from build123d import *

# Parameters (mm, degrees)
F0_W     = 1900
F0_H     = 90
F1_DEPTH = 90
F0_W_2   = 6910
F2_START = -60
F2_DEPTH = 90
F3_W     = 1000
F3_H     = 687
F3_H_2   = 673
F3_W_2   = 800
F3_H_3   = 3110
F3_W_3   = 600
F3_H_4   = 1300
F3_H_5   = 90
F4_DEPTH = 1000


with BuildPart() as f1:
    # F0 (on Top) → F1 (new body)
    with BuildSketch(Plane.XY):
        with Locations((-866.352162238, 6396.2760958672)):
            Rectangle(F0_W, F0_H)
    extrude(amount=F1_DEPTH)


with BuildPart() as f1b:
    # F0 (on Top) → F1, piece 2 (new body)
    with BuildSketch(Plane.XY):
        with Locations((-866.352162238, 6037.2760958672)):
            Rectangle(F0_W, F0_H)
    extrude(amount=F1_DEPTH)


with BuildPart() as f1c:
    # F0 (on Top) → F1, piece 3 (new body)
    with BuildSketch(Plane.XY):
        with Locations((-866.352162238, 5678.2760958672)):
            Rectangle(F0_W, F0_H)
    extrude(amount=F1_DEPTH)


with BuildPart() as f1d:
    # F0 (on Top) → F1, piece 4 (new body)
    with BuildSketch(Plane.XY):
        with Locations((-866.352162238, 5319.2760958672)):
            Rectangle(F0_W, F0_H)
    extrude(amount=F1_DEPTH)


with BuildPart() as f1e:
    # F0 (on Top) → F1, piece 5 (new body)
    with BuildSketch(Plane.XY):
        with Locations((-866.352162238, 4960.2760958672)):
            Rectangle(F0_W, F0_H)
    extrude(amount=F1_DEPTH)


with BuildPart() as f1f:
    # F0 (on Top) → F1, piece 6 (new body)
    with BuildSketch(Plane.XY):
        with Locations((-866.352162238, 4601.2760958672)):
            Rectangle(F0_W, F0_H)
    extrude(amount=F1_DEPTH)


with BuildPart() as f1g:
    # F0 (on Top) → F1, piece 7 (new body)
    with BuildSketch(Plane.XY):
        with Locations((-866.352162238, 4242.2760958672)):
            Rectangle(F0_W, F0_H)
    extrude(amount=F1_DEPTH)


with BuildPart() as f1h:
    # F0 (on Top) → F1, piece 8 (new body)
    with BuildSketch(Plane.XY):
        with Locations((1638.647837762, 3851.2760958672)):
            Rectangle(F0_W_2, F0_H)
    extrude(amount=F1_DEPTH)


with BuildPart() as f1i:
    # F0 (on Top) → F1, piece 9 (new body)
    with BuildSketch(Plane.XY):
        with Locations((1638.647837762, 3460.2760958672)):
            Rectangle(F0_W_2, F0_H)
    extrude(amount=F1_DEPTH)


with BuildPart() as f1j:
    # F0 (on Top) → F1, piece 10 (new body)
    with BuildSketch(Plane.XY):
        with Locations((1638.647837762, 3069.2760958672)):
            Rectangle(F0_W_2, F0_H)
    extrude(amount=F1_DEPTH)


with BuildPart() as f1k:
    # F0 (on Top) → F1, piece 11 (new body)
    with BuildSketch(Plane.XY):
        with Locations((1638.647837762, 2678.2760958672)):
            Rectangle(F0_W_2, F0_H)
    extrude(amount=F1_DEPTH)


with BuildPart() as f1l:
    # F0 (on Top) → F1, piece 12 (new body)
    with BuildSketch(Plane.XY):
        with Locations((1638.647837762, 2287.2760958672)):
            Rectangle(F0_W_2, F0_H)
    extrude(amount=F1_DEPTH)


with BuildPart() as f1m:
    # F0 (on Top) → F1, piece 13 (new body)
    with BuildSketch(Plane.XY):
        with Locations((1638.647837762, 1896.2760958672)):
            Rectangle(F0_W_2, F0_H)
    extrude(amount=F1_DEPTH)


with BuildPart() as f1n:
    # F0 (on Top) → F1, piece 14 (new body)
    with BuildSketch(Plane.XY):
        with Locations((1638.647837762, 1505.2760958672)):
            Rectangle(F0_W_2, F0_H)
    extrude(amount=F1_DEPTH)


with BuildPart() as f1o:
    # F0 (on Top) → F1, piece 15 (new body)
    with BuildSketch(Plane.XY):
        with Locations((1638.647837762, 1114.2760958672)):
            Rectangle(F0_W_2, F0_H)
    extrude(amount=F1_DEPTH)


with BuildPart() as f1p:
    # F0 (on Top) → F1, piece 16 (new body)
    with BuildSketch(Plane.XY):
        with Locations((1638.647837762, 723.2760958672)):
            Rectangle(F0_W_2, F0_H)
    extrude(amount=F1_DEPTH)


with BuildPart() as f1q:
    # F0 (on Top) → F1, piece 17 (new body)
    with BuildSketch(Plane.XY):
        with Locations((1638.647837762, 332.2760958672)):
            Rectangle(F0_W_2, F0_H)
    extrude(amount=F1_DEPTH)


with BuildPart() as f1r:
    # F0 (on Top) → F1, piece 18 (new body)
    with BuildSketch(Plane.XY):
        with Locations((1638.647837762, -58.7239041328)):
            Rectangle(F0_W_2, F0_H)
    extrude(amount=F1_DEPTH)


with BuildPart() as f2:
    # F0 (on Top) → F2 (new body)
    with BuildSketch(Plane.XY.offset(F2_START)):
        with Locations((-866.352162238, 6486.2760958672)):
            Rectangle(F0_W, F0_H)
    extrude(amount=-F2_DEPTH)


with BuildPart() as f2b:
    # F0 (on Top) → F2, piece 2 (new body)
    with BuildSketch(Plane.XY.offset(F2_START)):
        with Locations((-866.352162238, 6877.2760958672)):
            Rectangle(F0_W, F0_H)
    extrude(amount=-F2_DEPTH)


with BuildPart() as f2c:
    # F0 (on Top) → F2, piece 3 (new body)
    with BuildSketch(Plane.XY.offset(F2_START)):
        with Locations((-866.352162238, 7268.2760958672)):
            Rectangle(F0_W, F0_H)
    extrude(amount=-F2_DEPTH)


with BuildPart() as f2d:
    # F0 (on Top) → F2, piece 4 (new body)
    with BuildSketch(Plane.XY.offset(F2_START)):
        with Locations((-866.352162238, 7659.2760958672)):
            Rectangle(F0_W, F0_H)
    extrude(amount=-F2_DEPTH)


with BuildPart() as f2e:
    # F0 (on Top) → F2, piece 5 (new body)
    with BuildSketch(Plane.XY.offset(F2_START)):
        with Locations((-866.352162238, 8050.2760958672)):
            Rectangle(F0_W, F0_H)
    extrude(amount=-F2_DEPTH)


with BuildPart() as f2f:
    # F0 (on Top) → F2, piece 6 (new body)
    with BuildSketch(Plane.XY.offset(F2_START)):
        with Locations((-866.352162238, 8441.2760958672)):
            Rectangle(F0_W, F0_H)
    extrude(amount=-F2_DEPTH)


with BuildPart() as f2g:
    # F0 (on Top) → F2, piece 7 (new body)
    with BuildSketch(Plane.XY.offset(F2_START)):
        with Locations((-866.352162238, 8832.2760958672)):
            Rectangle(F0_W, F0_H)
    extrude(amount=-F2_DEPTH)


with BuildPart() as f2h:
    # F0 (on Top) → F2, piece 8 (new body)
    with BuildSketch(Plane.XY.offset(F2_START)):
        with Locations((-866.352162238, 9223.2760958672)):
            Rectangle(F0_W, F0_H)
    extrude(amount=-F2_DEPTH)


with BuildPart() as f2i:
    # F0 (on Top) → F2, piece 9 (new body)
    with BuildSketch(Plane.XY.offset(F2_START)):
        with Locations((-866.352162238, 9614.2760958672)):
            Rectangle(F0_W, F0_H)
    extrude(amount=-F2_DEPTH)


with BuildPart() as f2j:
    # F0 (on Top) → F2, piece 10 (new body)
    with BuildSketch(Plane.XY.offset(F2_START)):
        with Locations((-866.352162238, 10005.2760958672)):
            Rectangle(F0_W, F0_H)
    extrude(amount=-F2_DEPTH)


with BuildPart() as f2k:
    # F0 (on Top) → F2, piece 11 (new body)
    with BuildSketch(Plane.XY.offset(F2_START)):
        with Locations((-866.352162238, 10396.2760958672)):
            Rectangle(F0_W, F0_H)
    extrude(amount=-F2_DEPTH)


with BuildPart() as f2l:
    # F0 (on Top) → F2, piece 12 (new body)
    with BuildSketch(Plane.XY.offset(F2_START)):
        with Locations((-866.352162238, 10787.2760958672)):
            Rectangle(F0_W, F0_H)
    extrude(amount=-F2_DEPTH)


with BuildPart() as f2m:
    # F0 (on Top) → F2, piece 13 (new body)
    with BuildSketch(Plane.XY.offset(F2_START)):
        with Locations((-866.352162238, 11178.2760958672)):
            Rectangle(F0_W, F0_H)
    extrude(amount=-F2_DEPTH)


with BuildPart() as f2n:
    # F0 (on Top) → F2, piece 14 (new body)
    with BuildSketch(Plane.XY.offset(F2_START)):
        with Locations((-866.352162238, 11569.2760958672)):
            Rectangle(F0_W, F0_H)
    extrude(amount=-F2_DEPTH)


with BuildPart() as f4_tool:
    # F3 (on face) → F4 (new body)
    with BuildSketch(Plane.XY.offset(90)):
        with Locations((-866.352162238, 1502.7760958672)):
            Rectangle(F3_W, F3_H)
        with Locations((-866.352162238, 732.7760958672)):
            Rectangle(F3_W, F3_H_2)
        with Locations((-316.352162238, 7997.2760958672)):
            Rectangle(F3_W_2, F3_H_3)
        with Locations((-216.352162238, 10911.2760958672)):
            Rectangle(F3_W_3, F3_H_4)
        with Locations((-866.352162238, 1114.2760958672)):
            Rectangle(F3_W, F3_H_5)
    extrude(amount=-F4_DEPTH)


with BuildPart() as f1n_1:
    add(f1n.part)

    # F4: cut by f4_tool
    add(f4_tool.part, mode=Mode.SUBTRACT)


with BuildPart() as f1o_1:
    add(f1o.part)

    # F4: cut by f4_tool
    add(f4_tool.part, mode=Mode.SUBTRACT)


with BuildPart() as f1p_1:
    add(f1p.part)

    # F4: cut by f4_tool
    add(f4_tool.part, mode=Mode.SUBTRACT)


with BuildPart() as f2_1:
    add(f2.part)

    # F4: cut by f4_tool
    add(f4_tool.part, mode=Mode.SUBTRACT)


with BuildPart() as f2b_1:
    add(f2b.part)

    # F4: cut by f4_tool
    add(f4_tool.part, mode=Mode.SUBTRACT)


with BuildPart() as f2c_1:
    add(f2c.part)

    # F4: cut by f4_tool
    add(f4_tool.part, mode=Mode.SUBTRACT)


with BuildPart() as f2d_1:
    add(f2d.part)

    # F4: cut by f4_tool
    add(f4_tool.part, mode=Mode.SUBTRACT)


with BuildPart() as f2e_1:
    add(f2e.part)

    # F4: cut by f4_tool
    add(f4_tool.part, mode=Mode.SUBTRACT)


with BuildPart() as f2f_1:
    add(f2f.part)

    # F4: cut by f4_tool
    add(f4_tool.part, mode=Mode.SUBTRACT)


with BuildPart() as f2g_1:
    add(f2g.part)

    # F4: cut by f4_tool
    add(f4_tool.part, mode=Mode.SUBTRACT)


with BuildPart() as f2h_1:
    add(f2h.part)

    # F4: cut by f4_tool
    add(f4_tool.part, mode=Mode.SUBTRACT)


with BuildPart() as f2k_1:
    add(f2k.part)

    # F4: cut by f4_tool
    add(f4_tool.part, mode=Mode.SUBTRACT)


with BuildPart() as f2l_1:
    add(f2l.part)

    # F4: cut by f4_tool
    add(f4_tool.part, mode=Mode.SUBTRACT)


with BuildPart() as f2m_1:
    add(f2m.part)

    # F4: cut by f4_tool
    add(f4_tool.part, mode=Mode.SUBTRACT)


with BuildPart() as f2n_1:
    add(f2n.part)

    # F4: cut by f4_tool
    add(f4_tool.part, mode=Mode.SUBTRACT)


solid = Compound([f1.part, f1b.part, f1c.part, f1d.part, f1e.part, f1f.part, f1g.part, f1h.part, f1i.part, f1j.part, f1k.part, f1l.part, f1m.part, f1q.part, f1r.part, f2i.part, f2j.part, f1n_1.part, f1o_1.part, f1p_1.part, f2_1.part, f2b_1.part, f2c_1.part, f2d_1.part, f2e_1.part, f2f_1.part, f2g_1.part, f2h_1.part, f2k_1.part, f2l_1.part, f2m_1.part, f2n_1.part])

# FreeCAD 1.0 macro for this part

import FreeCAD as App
import Part
import Sketcher

V = App.Vector


def add_polygon(sketch, points):
    """Adds a closed chain of lines whose ends are joined by coincident constraints."""
    first, n = sketch.GeometryCount, len(points)
    for a, b in zip(points, points[1:] + points[:1]):
        sketch.addGeometry(Part.LineSegment(App.Vector(*a, 0), App.Vector(*b, 0)), False)
    for i in range(n):
        sketch.addConstraint(Sketcher.Constraint("Coincident", first + i, 2, first + (i + 1) % n, 1))

doc = App.newDocument("Part")
body = doc.addObject("PartDesign::Body", "Body")

sketch1 = body.newObject("Sketcher::SketchObject", "Sketch")
sketch1.AttachmentSupport = (doc.getObject("XY_Plane"), [""])
sketch1.MapMode = "FlatFace"
add_polygon(sketch1, [(-1816, 6441), (-1816, 6351), (84, 6351), (84, 6441)])
sketch1.addConstraint(Sketcher.Constraint("Vertical", 0))
sketch1.addConstraint(Sketcher.Constraint("Horizontal", 1))
sketch1.addConstraint(Sketcher.Constraint("Vertical", 2))
sketch1.addConstraint(Sketcher.Constraint("Horizontal", 3))
sketch1.addConstraint(Sketcher.Constraint("DistanceX", 1, 1, 1, 2, 1900.0))
sketch1.addConstraint(Sketcher.Constraint("DistanceY", 0, 2, 0, 1, 90.0))
sketch1.addConstraint(Sketcher.Constraint("DistanceX", 0, 2, -1, 1, 1816.352162))
sketch1.addConstraint(Sketcher.Constraint("DistanceY", -1, 1, 0, 2, 6351.276096))
pad1 = body.newObject("PartDesign::Pad", "Pad")
pad1.Profile = sketch1
pad1.Length = 90
body2 = doc.addObject("PartDesign::Body", "Body001")

sketch2 = body2.newObject("Sketcher::SketchObject", "Sketch001")
sketch2.AttachmentSupport = (doc.getObject("XY_Plane001"), [""])
sketch2.MapMode = "FlatFace"
add_polygon(sketch2, [(-1816, 6082), (-1816, 5992), (84, 5992), (84, 6082)])
sketch2.addConstraint(Sketcher.Constraint("Vertical", 0))
sketch2.addConstraint(Sketcher.Constraint("Horizontal", 1))
sketch2.addConstraint(Sketcher.Constraint("Vertical", 2))
sketch2.addConstraint(Sketcher.Constraint("Horizontal", 3))
sketch2.addConstraint(Sketcher.Constraint("DistanceX", 1, 1, 1, 2, 1900.0))
sketch2.addConstraint(Sketcher.Constraint("DistanceY", 0, 2, 0, 1, 90.0))
sketch2.addConstraint(Sketcher.Constraint("DistanceX", 0, 2, -1, 1, 1816.352162))
sketch2.addConstraint(Sketcher.Constraint("DistanceY", -1, 1, 0, 2, 5992.276096))
pad2 = body2.newObject("PartDesign::Pad", "Pad001")
pad2.Profile = sketch2
pad2.Length = 90
body3 = doc.addObject("PartDesign::Body", "Body002")

sketch3 = body3.newObject("Sketcher::SketchObject", "Sketch002")
sketch3.AttachmentSupport = (doc.getObject("XY_Plane002"), [""])
sketch3.MapMode = "FlatFace"
add_polygon(sketch3, [(-1816, 5723), (-1816, 5633), (84, 5633), (84, 5723)])
sketch3.addConstraint(Sketcher.Constraint("Vertical", 0))
sketch3.addConstraint(Sketcher.Constraint("Horizontal", 1))
sketch3.addConstraint(Sketcher.Constraint("Vertical", 2))
sketch3.addConstraint(Sketcher.Constraint("Horizontal", 3))
sketch3.addConstraint(Sketcher.Constraint("DistanceX", 1, 1, 1, 2, 1900.0))
sketch3.addConstraint(Sketcher.Constraint("DistanceY", 0, 2, 0, 1, 90.0))
sketch3.addConstraint(Sketcher.Constraint("DistanceX", 0, 2, -1, 1, 1816.352162))
sketch3.addConstraint(Sketcher.Constraint("DistanceY", -1, 1, 0, 2, 5633.276096))
pad3 = body3.newObject("PartDesign::Pad", "Pad002")
pad3.Profile = sketch3
pad3.Length = 90
body4 = doc.addObject("PartDesign::Body", "Body003")

sketch4 = body4.newObject("Sketcher::SketchObject", "Sketch003")
sketch4.AttachmentSupport = (doc.getObject("XY_Plane003"), [""])
sketch4.MapMode = "FlatFace"
add_polygon(sketch4, [(-1816, 5364), (-1816, 5274), (84, 5274), (84, 5364)])
sketch4.addConstraint(Sketcher.Constraint("Vertical", 0))
sketch4.addConstraint(Sketcher.Constraint("Horizontal", 1))
sketch4.addConstraint(Sketcher.Constraint("Vertical", 2))
sketch4.addConstraint(Sketcher.Constraint("Horizontal", 3))
sketch4.addConstraint(Sketcher.Constraint("DistanceX", 1, 1, 1, 2, 1900.0))
sketch4.addConstraint(Sketcher.Constraint("DistanceY", 0, 2, 0, 1, 90.0))
sketch4.addConstraint(Sketcher.Constraint("DistanceX", 0, 2, -1, 1, 1816.352162))
sketch4.addConstraint(Sketcher.Constraint("DistanceY", -1, 1, 0, 2, 5274.276096))
pad4 = body4.newObject("PartDesign::Pad", "Pad003")
pad4.Profile = sketch4
pad4.Length = 90
body5 = doc.addObject("PartDesign::Body", "Body004")

sketch5 = body5.newObject("Sketcher::SketchObject", "Sketch004")
sketch5.AttachmentSupport = (doc.getObject("XY_Plane004"), [""])
sketch5.MapMode = "FlatFace"
add_polygon(sketch5, [(-1816, 5005), (-1816, 4915), (84, 4915), (84, 5005)])
sketch5.addConstraint(Sketcher.Constraint("Vertical", 0))
sketch5.addConstraint(Sketcher.Constraint("Horizontal", 1))
sketch5.addConstraint(Sketcher.Constraint("Vertical", 2))
sketch5.addConstraint(Sketcher.Constraint("Horizontal", 3))
sketch5.addConstraint(Sketcher.Constraint("DistanceX", 1, 1, 1, 2, 1900.0))
sketch5.addConstraint(Sketcher.Constraint("DistanceY", 0, 2, 0, 1, 90.0))
sketch5.addConstraint(Sketcher.Constraint("DistanceX", 0, 2, -1, 1, 1816.352162))
sketch5.addConstraint(Sketcher.Constraint("DistanceY", -1, 1, 0, 2, 4915.276096))
pad5 = body5.newObject("PartDesign::Pad", "Pad004")
pad5.Profile = sketch5
pad5.Length = 90
body6 = doc.addObject("PartDesign::Body", "Body005")

sketch6 = body6.newObject("Sketcher::SketchObject", "Sketch005")
sketch6.AttachmentSupport = (doc.getObject("XY_Plane005"), [""])
sketch6.MapMode = "FlatFace"
add_polygon(sketch6, [(-1816, 4646), (-1816, 4556), (84, 4556), (84, 4646)])
sketch6.addConstraint(Sketcher.Constraint("Vertical", 0))
sketch6.addConstraint(Sketcher.Constraint("Horizontal", 1))
sketch6.addConstraint(Sketcher.Constraint("Vertical", 2))
sketch6.addConstraint(Sketcher.Constraint("Horizontal", 3))
sketch6.addConstraint(Sketcher.Constraint("DistanceX", 1, 1, 1, 2, 1900.0))
sketch6.addConstraint(Sketcher.Constraint("DistanceY", 0, 2, 0, 1, 90.0))
sketch6.addConstraint(Sketcher.Constraint("DistanceX", 0, 2, -1, 1, 1816.352162))
sketch6.addConstraint(Sketcher.Constraint("DistanceY", -1, 1, 0, 2, 4556.276096))
pad6 = body6.newObject("PartDesign::Pad", "Pad005")
pad6.Profile = sketch6
pad6.Length = 90
body7 = doc.addObject("PartDesign::Body", "Body006")

sketch7 = body7.newObject("Sketcher::SketchObject", "Sketch006")
sketch7.AttachmentSupport = (doc.getObject("XY_Plane006"), [""])
sketch7.MapMode = "FlatFace"
add_polygon(sketch7, [(-1816, 4287), (-1816, 4197), (84, 4197), (84, 4287)])
sketch7.addConstraint(Sketcher.Constraint("Vertical", 0))
sketch7.addConstraint(Sketcher.Constraint("Horizontal", 1))
sketch7.addConstraint(Sketcher.Constraint("Vertical", 2))
sketch7.addConstraint(Sketcher.Constraint("Horizontal", 3))
sketch7.addConstraint(Sketcher.Constraint("DistanceX", 1, 1, 1, 2, 1900.0))
sketch7.addConstraint(Sketcher.Constraint("DistanceY", 0, 2, 0, 1, 90.0))
sketch7.addConstraint(Sketcher.Constraint("DistanceX", 0, 2, -1, 1, 1816.352162))
sketch7.addConstraint(Sketcher.Constraint("DistanceY", -1, 1, 0, 2, 4197.276096))
pad7 = body7.newObject("PartDesign::Pad", "Pad006")
pad7.Profile = sketch7
pad7.Length = 90
body8 = doc.addObject("PartDesign::Body", "Body007")

sketch8 = body8.newObject("Sketcher::SketchObject", "Sketch007")
sketch8.AttachmentSupport = (doc.getObject("XY_Plane007"), [""])
sketch8.MapMode = "FlatFace"
add_polygon(sketch8, [(-1816, 3896), (-1816, 3806), (5094, 3806), (5094, 3896)])
sketch8.addConstraint(Sketcher.Constraint("Vertical", 0))
sketch8.addConstraint(Sketcher.Constraint("Horizontal", 1))
sketch8.addConstraint(Sketcher.Constraint("Vertical", 2))
sketch8.addConstraint(Sketcher.Constraint("Horizontal", 3))
sketch8.addConstraint(Sketcher.Constraint("DistanceX", 1, 1, 1, 2, 6910.0))
sketch8.addConstraint(Sketcher.Constraint("DistanceY", 0, 2, 0, 1, 90.0))
sketch8.addConstraint(Sketcher.Constraint("DistanceX", 0, 2, -1, 1, 1816.352162))
sketch8.addConstraint(Sketcher.Constraint("DistanceY", -1, 1, 0, 2, 3806.276096))
pad8 = body8.newObject("PartDesign::Pad", "Pad007")
pad8.Profile = sketch8
pad8.Length = 90
body9 = doc.addObject("PartDesign::Body", "Body008")

sketch9 = body9.newObject("Sketcher::SketchObject", "Sketch008")
sketch9.AttachmentSupport = (doc.getObject("XY_Plane008"), [""])
sketch9.MapMode = "FlatFace"
add_polygon(sketch9, [(-1816, 3505), (-1816, 3415), (5094, 3415), (5094, 3505)])
sketch9.addConstraint(Sketcher.Constraint("Vertical", 0))
sketch9.addConstraint(Sketcher.Constraint("Horizontal", 1))
sketch9.addConstraint(Sketcher.Constraint("Vertical", 2))
sketch9.addConstraint(Sketcher.Constraint("Horizontal", 3))
sketch9.addConstraint(Sketcher.Constraint("DistanceX", 1, 1, 1, 2, 6910.0))
sketch9.addConstraint(Sketcher.Constraint("DistanceY", 0, 2, 0, 1, 90.0))
sketch9.addConstraint(Sketcher.Constraint("DistanceX", 0, 2, -1, 1, 1816.352162))
sketch9.addConstraint(Sketcher.Constraint("DistanceY", -1, 1, 0, 2, 3415.276096))
pad9 = body9.newObject("PartDesign::Pad", "Pad008")
pad9.Profile = sketch9
pad9.Length = 90
body10 = doc.addObject("PartDesign::Body", "Body009")

sketch10 = body10.newObject("Sketcher::SketchObject", "Sketch009")
sketch10.AttachmentSupport = (doc.getObject("XY_Plane009"), [""])
sketch10.MapMode = "FlatFace"
add_polygon(sketch10, [(-1816, 3114), (-1816, 3024), (5094, 3024), (5094, 3114)])
sketch10.addConstraint(Sketcher.Constraint("Vertical", 0))
sketch10.addConstraint(Sketcher.Constraint("Horizontal", 1))
sketch10.addConstraint(Sketcher.Constraint("Vertical", 2))
sketch10.addConstraint(Sketcher.Constraint("Horizontal", 3))
sketch10.addConstraint(Sketcher.Constraint("DistanceX", 1, 1, 1, 2, 6910.0))
sketch10.addConstraint(Sketcher.Constraint("DistanceY", 0, 2, 0, 1, 90.0))
sketch10.addConstraint(Sketcher.Constraint("DistanceX", 0, 2, -1, 1, 1816.352162))
sketch10.addConstraint(Sketcher.Constraint("DistanceY", -1, 1, 0, 2, 3024.276096))
pad10 = body10.newObject("PartDesign::Pad", "Pad009")
pad10.Profile = sketch10
pad10.Length = 90
body11 = doc.addObject("PartDesign::Body", "Body010")

sketch11 = body11.newObject("Sketcher::SketchObject", "Sketch010")
sketch11.AttachmentSupport = (doc.getObject("XY_Plane010"), [""])
sketch11.MapMode = "FlatFace"
add_polygon(sketch11, [(-1816, 2723), (-1816, 2633), (5094, 2633), (5094, 2723)])
sketch11.addConstraint(Sketcher.Constraint("Vertical", 0))
sketch11.addConstraint(Sketcher.Constraint("Horizontal", 1))
sketch11.addConstraint(Sketcher.Constraint("Vertical", 2))
sketch11.addConstraint(Sketcher.Constraint("Horizontal", 3))
sketch11.addConstraint(Sketcher.Constraint("DistanceX", 1, 1, 1, 2, 6910.0))
sketch11.addConstraint(Sketcher.Constraint("DistanceY", 0, 2, 0, 1, 90.0))
sketch11.addConstraint(Sketcher.Constraint("DistanceX", 0, 2, -1, 1, 1816.352162))
sketch11.addConstraint(Sketcher.Constraint("DistanceY", -1, 1, 0, 2, 2633.276096))
pad11 = body11.newObject("PartDesign::Pad", "Pad010")
pad11.Profile = sketch11
pad11.Length = 90
body12 = doc.addObject("PartDesign::Body", "Body011")

sketch12 = body12.newObject("Sketcher::SketchObject", "Sketch011")
sketch12.AttachmentSupport = (doc.getObject("XY_Plane011"), [""])
sketch12.MapMode = "FlatFace"
add_polygon(sketch12, [(-1816, 2332), (-1816, 2242), (5094, 2242), (5094, 2332)])
sketch12.addConstraint(Sketcher.Constraint("Vertical", 0))
sketch12.addConstraint(Sketcher.Constraint("Horizontal", 1))
sketch12.addConstraint(Sketcher.Constraint("Vertical", 2))
sketch12.addConstraint(Sketcher.Constraint("Horizontal", 3))
sketch12.addConstraint(Sketcher.Constraint("DistanceX", 1, 1, 1, 2, 6910.0))
sketch12.addConstraint(Sketcher.Constraint("DistanceY", 0, 2, 0, 1, 90.0))
sketch12.addConstraint(Sketcher.Constraint("DistanceX", 0, 2, -1, 1, 1816.352162))
sketch12.addConstraint(Sketcher.Constraint("DistanceY", -1, 1, 0, 2, 2242.276096))
pad12 = body12.newObject("PartDesign::Pad", "Pad011")
pad12.Profile = sketch12
pad12.Length = 90
body13 = doc.addObject("PartDesign::Body", "Body012")

sketch13 = body13.newObject("Sketcher::SketchObject", "Sketch012")
sketch13.AttachmentSupport = (doc.getObject("XY_Plane012"), [""])
sketch13.MapMode = "FlatFace"
add_polygon(sketch13, [(-1816, 1941), (-1816, 1851), (5094, 1851), (5094, 1941)])
sketch13.addConstraint(Sketcher.Constraint("Vertical", 0))
sketch13.addConstraint(Sketcher.Constraint("Horizontal", 1))
sketch13.addConstraint(Sketcher.Constraint("Vertical", 2))
sketch13.addConstraint(Sketcher.Constraint("Horizontal", 3))
sketch13.addConstraint(Sketcher.Constraint("DistanceX", 1, 1, 1, 2, 6910.0))
sketch13.addConstraint(Sketcher.Constraint("DistanceY", 0, 2, 0, 1, 90.0))
sketch13.addConstraint(Sketcher.Constraint("DistanceX", 0, 2, -1, 1, 1816.352162))
sketch13.addConstraint(Sketcher.Constraint("DistanceY", -1, 1, 0, 2, 1851.276096))
pad13 = body13.newObject("PartDesign::Pad", "Pad012")
pad13.Profile = sketch13
pad13.Length = 90
body14 = doc.addObject("PartDesign::Body", "Body013")

sketch14 = body14.newObject("Sketcher::SketchObject", "Sketch013")
sketch14.AttachmentSupport = (doc.getObject("XY_Plane013"), [""])
sketch14.MapMode = "FlatFace"
add_polygon(sketch14, [(-1816, 1550), (-1816, 1460), (5094, 1460), (5094, 1550)])
sketch14.addConstraint(Sketcher.Constraint("Vertical", 0))
sketch14.addConstraint(Sketcher.Constraint("Horizontal", 1))
sketch14.addConstraint(Sketcher.Constraint("Vertical", 2))
sketch14.addConstraint(Sketcher.Constraint("Horizontal", 3))
sketch14.addConstraint(Sketcher.Constraint("DistanceX", 1, 1, 1, 2, 6910.0))
sketch14.addConstraint(Sketcher.Constraint("DistanceY", 0, 2, 0, 1, 90.0))
sketch14.addConstraint(Sketcher.Constraint("DistanceX", 0, 2, -1, 1, 1816.352162))
sketch14.addConstraint(Sketcher.Constraint("DistanceY", -1, 1, 0, 2, 1460.276096))
pad14 = body14.newObject("PartDesign::Pad", "Pad013")
pad14.Profile = sketch14
pad14.Length = 90
body15 = doc.addObject("PartDesign::Body", "Body014")

sketch15 = body15.newObject("Sketcher::SketchObject", "Sketch014")
sketch15.AttachmentSupport = (doc.getObject("XY_Plane014"), [""])
sketch15.MapMode = "FlatFace"
add_polygon(sketch15, [(-1816, 1159), (-1816, 1069), (5094, 1069), (5094, 1159)])
sketch15.addConstraint(Sketcher.Constraint("Vertical", 0))
sketch15.addConstraint(Sketcher.Constraint("Horizontal", 1))
sketch15.addConstraint(Sketcher.Constraint("Vertical", 2))
sketch15.addConstraint(Sketcher.Constraint("Horizontal", 3))
sketch15.addConstraint(Sketcher.Constraint("DistanceX", 1, 1, 1, 2, 6910.0))
sketch15.addConstraint(Sketcher.Constraint("DistanceY", 0, 2, 0, 1, 90.0))
sketch15.addConstraint(Sketcher.Constraint("DistanceX", 0, 2, -1, 1, 1816.352162))
sketch15.addConstraint(Sketcher.Constraint("DistanceY", -1, 1, 0, 2, 1069.276096))
pad15 = body15.newObject("PartDesign::Pad", "Pad014")
pad15.Profile = sketch15
pad15.Length = 90
body16 = doc.addObject("PartDesign::Body", "Body015")

sketch16 = body16.newObject("Sketcher::SketchObject", "Sketch015")
sketch16.AttachmentSupport = (doc.getObject("XY_Plane015"), [""])
sketch16.MapMode = "FlatFace"
add_polygon(sketch16, [(-1816, 768), (-1816, 678), (5094, 678), (5094, 768)])
sketch16.addConstraint(Sketcher.Constraint("Vertical", 0))
sketch16.addConstraint(Sketcher.Constraint("Horizontal", 1))
sketch16.addConstraint(Sketcher.Constraint("Vertical", 2))
sketch16.addConstraint(Sketcher.Constraint("Horizontal", 3))
sketch16.addConstraint(Sketcher.Constraint("DistanceX", 1, 1, 1, 2, 6910.0))
sketch16.addConstraint(Sketcher.Constraint("DistanceY", 0, 2, 0, 1, 90.0))
sketch16.addConstraint(Sketcher.Constraint("DistanceX", 0, 2, -1, 1, 1816.352162))
sketch16.addConstraint(Sketcher.Constraint("DistanceY", -1, 1, 0, 2, 678.276096))
pad16 = body16.newObject("PartDesign::Pad", "Pad015")
pad16.Profile = sketch16
pad16.Length = 90
body17 = doc.addObject("PartDesign::Body", "Body016")

sketch17 = body17.newObject("Sketcher::SketchObject", "Sketch016")
sketch17.AttachmentSupport = (doc.getObject("XY_Plane016"), [""])
sketch17.MapMode = "FlatFace"
add_polygon(sketch17, [(-1816, 377), (-1816, 287), (5094, 287), (5094, 377)])
sketch17.addConstraint(Sketcher.Constraint("Vertical", 0))
sketch17.addConstraint(Sketcher.Constraint("Horizontal", 1))
sketch17.addConstraint(Sketcher.Constraint("Vertical", 2))
sketch17.addConstraint(Sketcher.Constraint("Horizontal", 3))
sketch17.addConstraint(Sketcher.Constraint("DistanceX", 1, 1, 1, 2, 6910.0))
sketch17.addConstraint(Sketcher.Constraint("DistanceY", 0, 2, 0, 1, 90.0))
sketch17.addConstraint(Sketcher.Constraint("DistanceX", 0, 2, -1, 1, 1816.352162))
sketch17.addConstraint(Sketcher.Constraint("DistanceY", -1, 1, 0, 2, 287.276096))
pad17 = body17.newObject("PartDesign::Pad", "Pad016")
pad17.Profile = sketch17
pad17.Length = 90
body18 = doc.addObject("PartDesign::Body", "Body017")

sketch18 = body18.newObject("Sketcher::SketchObject", "Sketch017")
sketch18.AttachmentSupport = (doc.getObject("XY_Plane017"), [""])
sketch18.MapMode = "FlatFace"
add_polygon(sketch18, [(-1816, -14), (-1816, -104), (5094, -104), (5094, -14)])
sketch18.addConstraint(Sketcher.Constraint("Vertical", 0))
sketch18.addConstraint(Sketcher.Constraint("Horizontal", 1))
sketch18.addConstraint(Sketcher.Constraint("Vertical", 2))
sketch18.addConstraint(Sketcher.Constraint("Horizontal", 3))
sketch18.addConstraint(Sketcher.Constraint("DistanceX", 1, 1, 1, 2, 6910.0))
sketch18.addConstraint(Sketcher.Constraint("DistanceY", 0, 2, 0, 1, 90.0))
sketch18.addConstraint(Sketcher.Constraint("DistanceX", 0, 2, -1, 1, 1816.352162))
sketch18.addConstraint(Sketcher.Constraint("DistanceY", 0, 2, -1, 1, 103.723904))
pad18 = body18.newObject("PartDesign::Pad", "Pad017")
pad18.Profile = sketch18
pad18.Length = 90
body19 = doc.addObject("PartDesign::Body", "Body018")

sketch19 = body19.newObject("Sketcher::SketchObject", "Sketch018")
sketch19.AttachmentSupport = (doc.getObject("XY_Plane018"), [""])
sketch19.MapMode = "FlatFace"
sketch19.AttachmentOffset = App.Placement(V(0, 0, -60), App.Rotation())
add_polygon(sketch19, [(-1816, 6531), (-1816, 6441), (84, 6441), (84, 6531)])
sketch19.addConstraint(Sketcher.Constraint("Vertical", 0))
sketch19.addConstraint(Sketcher.Constraint("Horizontal", 1))
sketch19.addConstraint(Sketcher.Constraint("Vertical", 2))
sketch19.addConstraint(Sketcher.Constraint("Horizontal", 3))
sketch19.addConstraint(Sketcher.Constraint("DistanceX", 1, 1, 1, 2, 1900.0))
sketch19.addConstraint(Sketcher.Constraint("DistanceY", 0, 2, 0, 1, 90.0))
sketch19.addConstraint(Sketcher.Constraint("DistanceX", 0, 2, -1, 1, 1816.352162))
sketch19.addConstraint(Sketcher.Constraint("DistanceY", -1, 1, 0, 2, 6441.276096))
pad19 = body19.newObject("PartDesign::Pad", "Pad018")
pad19.Profile = sketch19
pad19.Length = 90
pad19.Reversed = True
body20 = doc.addObject("PartDesign::Body", "Body019")

sketch20 = body20.newObject("Sketcher::SketchObject", "Sketch019")
sketch20.AttachmentSupport = (doc.getObject("XY_Plane019"), [""])
sketch20.MapMode = "FlatFace"
sketch20.AttachmentOffset = App.Placement(V(0, 0, -60), App.Rotation())
add_polygon(sketch20, [(-1816, 6922), (-1816, 6832), (84, 6832), (84, 6922)])
sketch20.addConstraint(Sketcher.Constraint("Vertical", 0))
sketch20.addConstraint(Sketcher.Constraint("Horizontal", 1))
sketch20.addConstraint(Sketcher.Constraint("Vertical", 2))
sketch20.addConstraint(Sketcher.Constraint("Horizontal", 3))
sketch20.addConstraint(Sketcher.Constraint("DistanceX", 1, 1, 1, 2, 1900.0))
sketch20.addConstraint(Sketcher.Constraint("DistanceY", 0, 2, 0, 1, 90.0))
sketch20.addConstraint(Sketcher.Constraint("DistanceX", 0, 2, -1, 1, 1816.352162))
sketch20.addConstraint(Sketcher.Constraint("DistanceY", -1, 1, 0, 2, 6832.276096))
pad20 = body20.newObject("PartDesign::Pad", "Pad019")
pad20.Profile = sketch20
pad20.Length = 90
pad20.Reversed = True
body21 = doc.addObject("PartDesign::Body", "Body020")

sketch21 = body21.newObject("Sketcher::SketchObject", "Sketch020")
sketch21.AttachmentSupport = (doc.getObject("XY_Plane020"), [""])
sketch21.MapMode = "FlatFace"
sketch21.AttachmentOffset = App.Placement(V(0, 0, -60), App.Rotation())
add_polygon(sketch21, [(-1816, 7313), (-1816, 7223), (84, 7223), (84, 7313)])
sketch21.addConstraint(Sketcher.Constraint("Vertical", 0))
sketch21.addConstraint(Sketcher.Constraint("Horizontal", 1))
sketch21.addConstraint(Sketcher.Constraint("Vertical", 2))
sketch21.addConstraint(Sketcher.Constraint("Horizontal", 3))
sketch21.addConstraint(Sketcher.Constraint("DistanceX", 1, 1, 1, 2, 1900.0))
sketch21.addConstraint(Sketcher.Constraint("DistanceY", 0, 2, 0, 1, 90.0))
sketch21.addConstraint(Sketcher.Constraint("DistanceX", 0, 2, -1, 1, 1816.352162))
sketch21.addConstraint(Sketcher.Constraint("DistanceY", -1, 1, 0, 2, 7223.276096))
pad21 = body21.newObject("PartDesign::Pad", "Pad020")
pad21.Profile = sketch21
pad21.Length = 90
pad21.Reversed = True
body22 = doc.addObject("PartDesign::Body", "Body021")

sketch22 = body22.newObject("Sketcher::SketchObject", "Sketch021")
sketch22.AttachmentSupport = (doc.getObject("XY_Plane021"), [""])
sketch22.MapMode = "FlatFace"
sketch22.AttachmentOffset = App.Placement(V(0, 0, -60), App.Rotation())
add_polygon(sketch22, [(-1816, 7704), (-1816, 7614), (84, 7614), (84, 7704)])
sketch22.addConstraint(Sketcher.Constraint("Vertical", 0))
sketch22.addConstraint(Sketcher.Constraint("Horizontal", 1))
sketch22.addConstraint(Sketcher.Constraint("Vertical", 2))
sketch22.addConstraint(Sketcher.Constraint("Horizontal", 3))
sketch22.addConstraint(Sketcher.Constraint("DistanceX", 1, 1, 1, 2, 1900.0))
sketch22.addConstraint(Sketcher.Constraint("DistanceY", 0, 2, 0, 1, 90.0))
sketch22.addConstraint(Sketcher.Constraint("DistanceX", 0, 2, -1, 1, 1816.352162))
sketch22.addConstraint(Sketcher.Constraint("DistanceY", -1, 1, 0, 2, 7614.276096))
pad22 = body22.newObject("PartDesign::Pad", "Pad021")
pad22.Profile = sketch22
pad22.Length = 90
pad22.Reversed = True
body23 = doc.addObject("PartDesign::Body", "Body022")

sketch23 = body23.newObject("Sketcher::SketchObject", "Sketch022")
sketch23.AttachmentSupport = (doc.getObject("XY_Plane022"), [""])
sketch23.MapMode = "FlatFace"
sketch23.AttachmentOffset = App.Placement(V(0, 0, -60), App.Rotation())
add_polygon(sketch23, [(-1816, 8095), (-1816, 8005), (84, 8005), (84, 8095)])
sketch23.addConstraint(Sketcher.Constraint("Vertical", 0))
sketch23.addConstraint(Sketcher.Constraint("Horizontal", 1))
sketch23.addConstraint(Sketcher.Constraint("Vertical", 2))
sketch23.addConstraint(Sketcher.Constraint("Horizontal", 3))
sketch23.addConstraint(Sketcher.Constraint("DistanceX", 1, 1, 1, 2, 1900.0))
sketch23.addConstraint(Sketcher.Constraint("DistanceY", 0, 2, 0, 1, 90.0))
sketch23.addConstraint(Sketcher.Constraint("DistanceX", 0, 2, -1, 1, 1816.352162))
sketch23.addConstraint(Sketcher.Constraint("DistanceY", -1, 1, 0, 2, 8005.276096))
pad23 = body23.newObject("PartDesign::Pad", "Pad022")
pad23.Profile = sketch23
pad23.Length = 90
pad23.Reversed = True
body24 = doc.addObject("PartDesign::Body", "Body023")

sketch24 = body24.newObject("Sketcher::SketchObject", "Sketch023")
sketch24.AttachmentSupport = (doc.getObject("XY_Plane023"), [""])
sketch24.MapMode = "FlatFace"
sketch24.AttachmentOffset = App.Placement(V(0, 0, -60), App.Rotation())
add_polygon(sketch24, [(-1816, 8486), (-1816, 8396), (84, 8396), (84, 8486)])
sketch24.addConstraint(Sketcher.Constraint("Vertical", 0))
sketch24.addConstraint(Sketcher.Constraint("Horizontal", 1))
sketch24.addConstraint(Sketcher.Constraint("Vertical", 2))
sketch24.addConstraint(Sketcher.Constraint("Horizontal", 3))
sketch24.addConstraint(Sketcher.Constraint("DistanceX", 1, 1, 1, 2, 1900.0))
sketch24.addConstraint(Sketcher.Constraint("DistanceY", 0, 2, 0, 1, 90.0))
sketch24.addConstraint(Sketcher.Constraint("DistanceX", 0, 2, -1, 1, 1816.352162))
sketch24.addConstraint(Sketcher.Constraint("DistanceY", -1, 1, 0, 2, 8396.276096))
pad24 = body24.newObject("PartDesign::Pad", "Pad023")
pad24.Profile = sketch24
pad24.Length = 90
pad24.Reversed = True
body25 = doc.addObject("PartDesign::Body", "Body024")

sketch25 = body25.newObject("Sketcher::SketchObject", "Sketch024")
sketch25.AttachmentSupport = (doc.getObject("XY_Plane024"), [""])
sketch25.MapMode = "FlatFace"
sketch25.AttachmentOffset = App.Placement(V(0, 0, -60), App.Rotation())
add_polygon(sketch25, [(-1816, 8877), (-1816, 8787), (84, 8787), (84, 8877)])
sketch25.addConstraint(Sketcher.Constraint("Vertical", 0))
sketch25.addConstraint(Sketcher.Constraint("Horizontal", 1))
sketch25.addConstraint(Sketcher.Constraint("Vertical", 2))
sketch25.addConstraint(Sketcher.Constraint("Horizontal", 3))
sketch25.addConstraint(Sketcher.Constraint("DistanceX", 1, 1, 1, 2, 1900.0))
sketch25.addConstraint(Sketcher.Constraint("DistanceY", 0, 2, 0, 1, 90.0))
sketch25.addConstraint(Sketcher.Constraint("DistanceX", 0, 2, -1, 1, 1816.352162))
sketch25.addConstraint(Sketcher.Constraint("DistanceY", -1, 1, 0, 2, 8787.276096))
pad25 = body25.newObject("PartDesign::Pad", "Pad024")
pad25.Profile = sketch25
pad25.Length = 90
pad25.Reversed = True
body26 = doc.addObject("PartDesign::Body", "Body025")

sketch26 = body26.newObject("Sketcher::SketchObject", "Sketch025")
sketch26.AttachmentSupport = (doc.getObject("XY_Plane025"), [""])
sketch26.MapMode = "FlatFace"
sketch26.AttachmentOffset = App.Placement(V(0, 0, -60), App.Rotation())
add_polygon(sketch26, [(-1816, 9268), (-1816, 9178), (84, 9178), (84, 9268)])
sketch26.addConstraint(Sketcher.Constraint("Vertical", 0))
sketch26.addConstraint(Sketcher.Constraint("Horizontal", 1))
sketch26.addConstraint(Sketcher.Constraint("Vertical", 2))
sketch26.addConstraint(Sketcher.Constraint("Horizontal", 3))
sketch26.addConstraint(Sketcher.Constraint("DistanceX", 1, 1, 1, 2, 1900.0))
sketch26.addConstraint(Sketcher.Constraint("DistanceY", 0, 2, 0, 1, 90.0))
sketch26.addConstraint(Sketcher.Constraint("DistanceX", 0, 2, -1, 1, 1816.352162))
sketch26.addConstraint(Sketcher.Constraint("DistanceY", -1, 1, 0, 2, 9178.276096))
pad26 = body26.newObject("PartDesign::Pad", "Pad025")
pad26.Profile = sketch26
pad26.Length = 90
pad26.Reversed = True
body27 = doc.addObject("PartDesign::Body", "Body026")

sketch27 = body27.newObject("Sketcher::SketchObject", "Sketch026")
sketch27.AttachmentSupport = (doc.getObject("XY_Plane026"), [""])
sketch27.MapMode = "FlatFace"
sketch27.AttachmentOffset = App.Placement(V(0, 0, -60), App.Rotation())
add_polygon(sketch27, [(-1816, 9659), (-1816, 9569), (84, 9569), (84, 9659)])
sketch27.addConstraint(Sketcher.Constraint("Vertical", 0))
sketch27.addConstraint(Sketcher.Constraint("Horizontal", 1))
sketch27.addConstraint(Sketcher.Constraint("Vertical", 2))
sketch27.addConstraint(Sketcher.Constraint("Horizontal", 3))
sketch27.addConstraint(Sketcher.Constraint("DistanceX", 1, 1, 1, 2, 1900.0))
sketch27.addConstraint(Sketcher.Constraint("DistanceY", 0, 2, 0, 1, 90.0))
sketch27.addConstraint(Sketcher.Constraint("DistanceX", 0, 2, -1, 1, 1816.352162))
sketch27.addConstraint(Sketcher.Constraint("DistanceY", -1, 1, 0, 2, 9569.276096))
pad27 = body27.newObject("PartDesign::Pad", "Pad026")
pad27.Profile = sketch27
pad27.Length = 90
pad27.Reversed = True
body28 = doc.addObject("PartDesign::Body", "Body027")

sketch28 = body28.newObject("Sketcher::SketchObject", "Sketch027")
sketch28.AttachmentSupport = (doc.getObject("XY_Plane027"), [""])
sketch28.MapMode = "FlatFace"
sketch28.AttachmentOffset = App.Placement(V(0, 0, -60), App.Rotation())
add_polygon(sketch28, [(-1816, 10050), (-1816, 9960), (84, 9960), (84, 10050)])
sketch28.addConstraint(Sketcher.Constraint("Vertical", 0))
sketch28.addConstraint(Sketcher.Constraint("Horizontal", 1))
sketch28.addConstraint(Sketcher.Constraint("Vertical", 2))
sketch28.addConstraint(Sketcher.Constraint("Horizontal", 3))
sketch28.addConstraint(Sketcher.Constraint("DistanceX", 1, 1, 1, 2, 1900.0))
sketch28.addConstraint(Sketcher.Constraint("DistanceY", 0, 2, 0, 1, 90.0))
sketch28.addConstraint(Sketcher.Constraint("DistanceX", 0, 2, -1, 1, 1816.352162))
sketch28.addConstraint(Sketcher.Constraint("DistanceY", -1, 1, 0, 2, 9960.276096))
pad28 = body28.newObject("PartDesign::Pad", "Pad027")
pad28.Profile = sketch28
pad28.Length = 90
pad28.Reversed = True
body29 = doc.addObject("PartDesign::Body", "Body028")

sketch29 = body29.newObject("Sketcher::SketchObject", "Sketch028")
sketch29.AttachmentSupport = (doc.getObject("XY_Plane028"), [""])
sketch29.MapMode = "FlatFace"
sketch29.AttachmentOffset = App.Placement(V(0, 0, -60), App.Rotation())
add_polygon(sketch29, [(-1816, 10441), (-1816, 10351), (84, 10351), (84, 10441)])
sketch29.addConstraint(Sketcher.Constraint("Vertical", 0))
sketch29.addConstraint(Sketcher.Constraint("Horizontal", 1))
sketch29.addConstraint(Sketcher.Constraint("Vertical", 2))
sketch29.addConstraint(Sketcher.Constraint("Horizontal", 3))
sketch29.addConstraint(Sketcher.Constraint("DistanceX", 1, 1, 1, 2, 1900.0))
sketch29.addConstraint(Sketcher.Constraint("DistanceY", 0, 2, 0, 1, 90.0))
sketch29.addConstraint(Sketcher.Constraint("DistanceX", 0, 2, -1, 1, 1816.352162))
sketch29.addConstraint(Sketcher.Constraint("DistanceY", -1, 1, 0, 2, 10351.276096))
pad29 = body29.newObject("PartDesign::Pad", "Pad028")
pad29.Profile = sketch29
pad29.Length = 90
pad29.Reversed = True
body30 = doc.addObject("PartDesign::Body", "Body029")

sketch30 = body30.newObject("Sketcher::SketchObject", "Sketch029")
sketch30.AttachmentSupport = (doc.getObject("XY_Plane029"), [""])
sketch30.MapMode = "FlatFace"
sketch30.AttachmentOffset = App.Placement(V(0, 0, -60), App.Rotation())
add_polygon(sketch30, [(-1816, 10832), (-1816, 10742), (84, 10742), (84, 10832)])
sketch30.addConstraint(Sketcher.Constraint("Vertical", 0))
sketch30.addConstraint(Sketcher.Constraint("Horizontal", 1))
sketch30.addConstraint(Sketcher.Constraint("Vertical", 2))
sketch30.addConstraint(Sketcher.Constraint("Horizontal", 3))
sketch30.addConstraint(Sketcher.Constraint("DistanceX", 1, 1, 1, 2, 1900.0))
sketch30.addConstraint(Sketcher.Constraint("DistanceY", 0, 2, 0, 1, 90.0))
sketch30.addConstraint(Sketcher.Constraint("DistanceX", 0, 2, -1, 1, 1816.352162))
sketch30.addConstraint(Sketcher.Constraint("DistanceY", -1, 1, 0, 2, 10742.276096))
pad30 = body30.newObject("PartDesign::Pad", "Pad029")
pad30.Profile = sketch30
pad30.Length = 90
pad30.Reversed = True
body31 = doc.addObject("PartDesign::Body", "Body030")

sketch31 = body31.newObject("Sketcher::SketchObject", "Sketch030")
sketch31.AttachmentSupport = (doc.getObject("XY_Plane030"), [""])
sketch31.MapMode = "FlatFace"
sketch31.AttachmentOffset = App.Placement(V(0, 0, -60), App.Rotation())
add_polygon(sketch31, [(-1816, 11223), (-1816, 11133), (84, 11133), (84, 11223)])
sketch31.addConstraint(Sketcher.Constraint("Vertical", 0))
sketch31.addConstraint(Sketcher.Constraint("Horizontal", 1))
sketch31.addConstraint(Sketcher.Constraint("Vertical", 2))
sketch31.addConstraint(Sketcher.Constraint("Horizontal", 3))
sketch31.addConstraint(Sketcher.Constraint("DistanceX", 1, 1, 1, 2, 1900.0))
sketch31.addConstraint(Sketcher.Constraint("DistanceY", 0, 2, 0, 1, 90.0))
sketch31.addConstraint(Sketcher.Constraint("DistanceX", 0, 2, -1, 1, 1816.352162))
sketch31.addConstraint(Sketcher.Constraint("DistanceY", -1, 1, 0, 2, 11133.276096))
pad31 = body31.newObject("PartDesign::Pad", "Pad030")
pad31.Profile = sketch31
pad31.Length = 90
pad31.Reversed = True
body32 = doc.addObject("PartDesign::Body", "Body031")

sketch32 = body32.newObject("Sketcher::SketchObject", "Sketch031")
sketch32.AttachmentSupport = (doc.getObject("XY_Plane031"), [""])
sketch32.MapMode = "FlatFace"
sketch32.AttachmentOffset = App.Placement(V(0, 0, -60), App.Rotation())
add_polygon(sketch32, [(-1816, 11614), (-1816, 11524), (84, 11524), (84, 11614)])
sketch32.addConstraint(Sketcher.Constraint("Vertical", 0))
sketch32.addConstraint(Sketcher.Constraint("Horizontal", 1))
sketch32.addConstraint(Sketcher.Constraint("Vertical", 2))
sketch32.addConstraint(Sketcher.Constraint("Horizontal", 3))
sketch32.addConstraint(Sketcher.Constraint("DistanceX", 1, 1, 1, 2, 1900.0))
sketch32.addConstraint(Sketcher.Constraint("DistanceY", 0, 2, 0, 1, 90.0))
sketch32.addConstraint(Sketcher.Constraint("DistanceX", 0, 2, -1, 1, 1816.352162))
sketch32.addConstraint(Sketcher.Constraint("DistanceY", -1, 1, 0, 2, 11524.276096))
pad32 = body32.newObject("PartDesign::Pad", "Pad031")
pad32.Profile = sketch32
pad32.Length = 90
pad32.Reversed = True
body33 = doc.addObject("PartDesign::Body", "Body032")
body33.AllowCompound = True

sketch33 = body33.newObject("Sketcher::SketchObject", "Sketch032")
sketch33.AttachmentSupport = (doc.getObject("XY_Plane032"), [""])
sketch33.MapMode = "FlatFace"
sketch33.AttachmentOffset = App.Placement(V(0, 0, 90), App.Rotation())
add_polygon(sketch33, [(-1366, 1846), (-1366, 396), (-366, 396), (-366, 1846)])
add_polygon(sketch33, [(-716, 9552), (-716, 6442), (84, 6442), (84, 9552)])
add_polygon(sketch33, [(-516, 11561), (-516, 10261), (84, 10261), (84, 11561)])
sketch33.addConstraint(Sketcher.Constraint("Vertical", 0))
sketch33.addConstraint(Sketcher.Constraint("Horizontal", 1))
sketch33.addConstraint(Sketcher.Constraint("Vertical", 2))
sketch33.addConstraint(Sketcher.Constraint("Horizontal", 3))
sketch33.addConstraint(Sketcher.Constraint("Vertical", 4))
sketch33.addConstraint(Sketcher.Constraint("Horizontal", 5))
sketch33.addConstraint(Sketcher.Constraint("Vertical", 6))
sketch33.addConstraint(Sketcher.Constraint("Horizontal", 7))
sketch33.addConstraint(Sketcher.Constraint("Vertical", 8))
sketch33.addConstraint(Sketcher.Constraint("Horizontal", 9))
sketch33.addConstraint(Sketcher.Constraint("Vertical", 10))
sketch33.addConstraint(Sketcher.Constraint("Horizontal", 11))
sketch33.addConstraint(Sketcher.Constraint("Vertical", 6, 2, 9, 2))
sketch33.addConstraint(Sketcher.Constraint("DistanceX", 1, 1, 1, 2, 1000.0))
sketch33.addConstraint(Sketcher.Constraint("DistanceX", 5, 1, 5, 2, 800.0))
sketch33.addConstraint(Sketcher.Constraint("DistanceX", 9, 1, 9, 2, 600.0))
sketch33.addConstraint(Sketcher.Constraint("DistanceY", 0, 2, 0, 1, 1450.0))
sketch33.addConstraint(Sketcher.Constraint("DistanceY", 4, 2, 4, 1, 3110.0))
sketch33.addConstraint(Sketcher.Constraint("DistanceY", 8, 2, 8, 1, 1300.0))
sketch33.addConstraint(Sketcher.Constraint("DistanceX", 4, 2, 2, 2, 350.0))
sketch33.addConstraint(Sketcher.Constraint("DistanceY", 2, 2, 4, 2, 4596.0))
sketch33.addConstraint(Sketcher.Constraint("DistanceY", 7, 2, 8, 2, 709.0))
sketch33.addConstraint(Sketcher.Constraint("DistanceX", 0, 2, -1, 1, 1366.352162))
sketch33.addConstraint(Sketcher.Constraint("DistanceY", -1, 1, 0, 2, 396.276096))
pad33 = body33.newObject("PartDesign::Pad", "Pad032")
pad33.Profile = sketch33
pad33.Length = 1000
pad33.Reversed = True
body14.AllowCompound = True
doc.recompute()

body34 = doc.addObject("PartDesign::Body", "Body033")
body34.BaseFeature = body33
boolean = body14.newObject("PartDesign::Boolean", "Boolean")
boolean.Type = "Cut"
boolean.addObjects([body34])
doc.recompute()
body15.AllowCompound = True
doc.recompute()

body35 = doc.addObject("PartDesign::Body", "Body034")
body35.BaseFeature = body33
boolean2 = body15.newObject("PartDesign::Boolean", "Boolean001")
boolean2.Type = "Cut"
boolean2.addObjects([body35])
doc.recompute()
body16.AllowCompound = True
doc.recompute()

body36 = doc.addObject("PartDesign::Body", "Body035")
body36.BaseFeature = body33
boolean3 = body16.newObject("PartDesign::Boolean", "Boolean002")
boolean3.Type = "Cut"
boolean3.addObjects([body36])
doc.recompute()

body37 = doc.addObject("PartDesign::Body", "Body036")
body37.BaseFeature = body33
boolean4 = body19.newObject("PartDesign::Boolean", "Boolean003")
boolean4.Type = "Cut"
boolean4.addObjects([body37])
doc.recompute()

body38 = doc.addObject("PartDesign::Body", "Body037")
body38.BaseFeature = body33
boolean5 = body20.newObject("PartDesign::Boolean", "Boolean004")
boolean5.Type = "Cut"
boolean5.addObjects([body38])
doc.recompute()

body39 = doc.addObject("PartDesign::Body", "Body038")
body39.BaseFeature = body33
boolean6 = body21.newObject("PartDesign::Boolean", "Boolean005")
boolean6.Type = "Cut"
boolean6.addObjects([body39])
doc.recompute()

body40 = doc.addObject("PartDesign::Body", "Body039")
body40.BaseFeature = body33
boolean7 = body22.newObject("PartDesign::Boolean", "Boolean006")
boolean7.Type = "Cut"
boolean7.addObjects([body40])
doc.recompute()

body41 = doc.addObject("PartDesign::Body", "Body040")
body41.BaseFeature = body33
boolean8 = body23.newObject("PartDesign::Boolean", "Boolean007")
boolean8.Type = "Cut"
boolean8.addObjects([body41])
doc.recompute()

body42 = doc.addObject("PartDesign::Body", "Body041")
body42.BaseFeature = body33
boolean9 = body24.newObject("PartDesign::Boolean", "Boolean008")
boolean9.Type = "Cut"
boolean9.addObjects([body42])
doc.recompute()

body43 = doc.addObject("PartDesign::Body", "Body042")
body43.BaseFeature = body33
boolean10 = body25.newObject("PartDesign::Boolean", "Boolean009")
boolean10.Type = "Cut"
boolean10.addObjects([body43])
doc.recompute()

body44 = doc.addObject("PartDesign::Body", "Body043")
body44.BaseFeature = body33
boolean11 = body26.newObject("PartDesign::Boolean", "Boolean010")
boolean11.Type = "Cut"
boolean11.addObjects([body44])
doc.recompute()

body45 = doc.addObject("PartDesign::Body", "Body044")
body45.BaseFeature = body33
boolean12 = body29.newObject("PartDesign::Boolean", "Boolean011")
boolean12.Type = "Cut"
boolean12.addObjects([body45])
doc.recompute()

body46 = doc.addObject("PartDesign::Body", "Body045")
body46.BaseFeature = body33
boolean13 = body30.newObject("PartDesign::Boolean", "Boolean012")
boolean13.Type = "Cut"
boolean13.addObjects([body46])
doc.recompute()

body47 = doc.addObject("PartDesign::Body", "Body046")
body47.BaseFeature = body33
boolean14 = body31.newObject("PartDesign::Boolean", "Boolean013")
boolean14.Type = "Cut"
boolean14.addObjects([body47])
doc.recompute()

boolean15 = body32.newObject("PartDesign::Boolean", "Boolean014")
boolean15.Type = "Cut"
boolean15.addObjects([body33])

doc.recompute()
